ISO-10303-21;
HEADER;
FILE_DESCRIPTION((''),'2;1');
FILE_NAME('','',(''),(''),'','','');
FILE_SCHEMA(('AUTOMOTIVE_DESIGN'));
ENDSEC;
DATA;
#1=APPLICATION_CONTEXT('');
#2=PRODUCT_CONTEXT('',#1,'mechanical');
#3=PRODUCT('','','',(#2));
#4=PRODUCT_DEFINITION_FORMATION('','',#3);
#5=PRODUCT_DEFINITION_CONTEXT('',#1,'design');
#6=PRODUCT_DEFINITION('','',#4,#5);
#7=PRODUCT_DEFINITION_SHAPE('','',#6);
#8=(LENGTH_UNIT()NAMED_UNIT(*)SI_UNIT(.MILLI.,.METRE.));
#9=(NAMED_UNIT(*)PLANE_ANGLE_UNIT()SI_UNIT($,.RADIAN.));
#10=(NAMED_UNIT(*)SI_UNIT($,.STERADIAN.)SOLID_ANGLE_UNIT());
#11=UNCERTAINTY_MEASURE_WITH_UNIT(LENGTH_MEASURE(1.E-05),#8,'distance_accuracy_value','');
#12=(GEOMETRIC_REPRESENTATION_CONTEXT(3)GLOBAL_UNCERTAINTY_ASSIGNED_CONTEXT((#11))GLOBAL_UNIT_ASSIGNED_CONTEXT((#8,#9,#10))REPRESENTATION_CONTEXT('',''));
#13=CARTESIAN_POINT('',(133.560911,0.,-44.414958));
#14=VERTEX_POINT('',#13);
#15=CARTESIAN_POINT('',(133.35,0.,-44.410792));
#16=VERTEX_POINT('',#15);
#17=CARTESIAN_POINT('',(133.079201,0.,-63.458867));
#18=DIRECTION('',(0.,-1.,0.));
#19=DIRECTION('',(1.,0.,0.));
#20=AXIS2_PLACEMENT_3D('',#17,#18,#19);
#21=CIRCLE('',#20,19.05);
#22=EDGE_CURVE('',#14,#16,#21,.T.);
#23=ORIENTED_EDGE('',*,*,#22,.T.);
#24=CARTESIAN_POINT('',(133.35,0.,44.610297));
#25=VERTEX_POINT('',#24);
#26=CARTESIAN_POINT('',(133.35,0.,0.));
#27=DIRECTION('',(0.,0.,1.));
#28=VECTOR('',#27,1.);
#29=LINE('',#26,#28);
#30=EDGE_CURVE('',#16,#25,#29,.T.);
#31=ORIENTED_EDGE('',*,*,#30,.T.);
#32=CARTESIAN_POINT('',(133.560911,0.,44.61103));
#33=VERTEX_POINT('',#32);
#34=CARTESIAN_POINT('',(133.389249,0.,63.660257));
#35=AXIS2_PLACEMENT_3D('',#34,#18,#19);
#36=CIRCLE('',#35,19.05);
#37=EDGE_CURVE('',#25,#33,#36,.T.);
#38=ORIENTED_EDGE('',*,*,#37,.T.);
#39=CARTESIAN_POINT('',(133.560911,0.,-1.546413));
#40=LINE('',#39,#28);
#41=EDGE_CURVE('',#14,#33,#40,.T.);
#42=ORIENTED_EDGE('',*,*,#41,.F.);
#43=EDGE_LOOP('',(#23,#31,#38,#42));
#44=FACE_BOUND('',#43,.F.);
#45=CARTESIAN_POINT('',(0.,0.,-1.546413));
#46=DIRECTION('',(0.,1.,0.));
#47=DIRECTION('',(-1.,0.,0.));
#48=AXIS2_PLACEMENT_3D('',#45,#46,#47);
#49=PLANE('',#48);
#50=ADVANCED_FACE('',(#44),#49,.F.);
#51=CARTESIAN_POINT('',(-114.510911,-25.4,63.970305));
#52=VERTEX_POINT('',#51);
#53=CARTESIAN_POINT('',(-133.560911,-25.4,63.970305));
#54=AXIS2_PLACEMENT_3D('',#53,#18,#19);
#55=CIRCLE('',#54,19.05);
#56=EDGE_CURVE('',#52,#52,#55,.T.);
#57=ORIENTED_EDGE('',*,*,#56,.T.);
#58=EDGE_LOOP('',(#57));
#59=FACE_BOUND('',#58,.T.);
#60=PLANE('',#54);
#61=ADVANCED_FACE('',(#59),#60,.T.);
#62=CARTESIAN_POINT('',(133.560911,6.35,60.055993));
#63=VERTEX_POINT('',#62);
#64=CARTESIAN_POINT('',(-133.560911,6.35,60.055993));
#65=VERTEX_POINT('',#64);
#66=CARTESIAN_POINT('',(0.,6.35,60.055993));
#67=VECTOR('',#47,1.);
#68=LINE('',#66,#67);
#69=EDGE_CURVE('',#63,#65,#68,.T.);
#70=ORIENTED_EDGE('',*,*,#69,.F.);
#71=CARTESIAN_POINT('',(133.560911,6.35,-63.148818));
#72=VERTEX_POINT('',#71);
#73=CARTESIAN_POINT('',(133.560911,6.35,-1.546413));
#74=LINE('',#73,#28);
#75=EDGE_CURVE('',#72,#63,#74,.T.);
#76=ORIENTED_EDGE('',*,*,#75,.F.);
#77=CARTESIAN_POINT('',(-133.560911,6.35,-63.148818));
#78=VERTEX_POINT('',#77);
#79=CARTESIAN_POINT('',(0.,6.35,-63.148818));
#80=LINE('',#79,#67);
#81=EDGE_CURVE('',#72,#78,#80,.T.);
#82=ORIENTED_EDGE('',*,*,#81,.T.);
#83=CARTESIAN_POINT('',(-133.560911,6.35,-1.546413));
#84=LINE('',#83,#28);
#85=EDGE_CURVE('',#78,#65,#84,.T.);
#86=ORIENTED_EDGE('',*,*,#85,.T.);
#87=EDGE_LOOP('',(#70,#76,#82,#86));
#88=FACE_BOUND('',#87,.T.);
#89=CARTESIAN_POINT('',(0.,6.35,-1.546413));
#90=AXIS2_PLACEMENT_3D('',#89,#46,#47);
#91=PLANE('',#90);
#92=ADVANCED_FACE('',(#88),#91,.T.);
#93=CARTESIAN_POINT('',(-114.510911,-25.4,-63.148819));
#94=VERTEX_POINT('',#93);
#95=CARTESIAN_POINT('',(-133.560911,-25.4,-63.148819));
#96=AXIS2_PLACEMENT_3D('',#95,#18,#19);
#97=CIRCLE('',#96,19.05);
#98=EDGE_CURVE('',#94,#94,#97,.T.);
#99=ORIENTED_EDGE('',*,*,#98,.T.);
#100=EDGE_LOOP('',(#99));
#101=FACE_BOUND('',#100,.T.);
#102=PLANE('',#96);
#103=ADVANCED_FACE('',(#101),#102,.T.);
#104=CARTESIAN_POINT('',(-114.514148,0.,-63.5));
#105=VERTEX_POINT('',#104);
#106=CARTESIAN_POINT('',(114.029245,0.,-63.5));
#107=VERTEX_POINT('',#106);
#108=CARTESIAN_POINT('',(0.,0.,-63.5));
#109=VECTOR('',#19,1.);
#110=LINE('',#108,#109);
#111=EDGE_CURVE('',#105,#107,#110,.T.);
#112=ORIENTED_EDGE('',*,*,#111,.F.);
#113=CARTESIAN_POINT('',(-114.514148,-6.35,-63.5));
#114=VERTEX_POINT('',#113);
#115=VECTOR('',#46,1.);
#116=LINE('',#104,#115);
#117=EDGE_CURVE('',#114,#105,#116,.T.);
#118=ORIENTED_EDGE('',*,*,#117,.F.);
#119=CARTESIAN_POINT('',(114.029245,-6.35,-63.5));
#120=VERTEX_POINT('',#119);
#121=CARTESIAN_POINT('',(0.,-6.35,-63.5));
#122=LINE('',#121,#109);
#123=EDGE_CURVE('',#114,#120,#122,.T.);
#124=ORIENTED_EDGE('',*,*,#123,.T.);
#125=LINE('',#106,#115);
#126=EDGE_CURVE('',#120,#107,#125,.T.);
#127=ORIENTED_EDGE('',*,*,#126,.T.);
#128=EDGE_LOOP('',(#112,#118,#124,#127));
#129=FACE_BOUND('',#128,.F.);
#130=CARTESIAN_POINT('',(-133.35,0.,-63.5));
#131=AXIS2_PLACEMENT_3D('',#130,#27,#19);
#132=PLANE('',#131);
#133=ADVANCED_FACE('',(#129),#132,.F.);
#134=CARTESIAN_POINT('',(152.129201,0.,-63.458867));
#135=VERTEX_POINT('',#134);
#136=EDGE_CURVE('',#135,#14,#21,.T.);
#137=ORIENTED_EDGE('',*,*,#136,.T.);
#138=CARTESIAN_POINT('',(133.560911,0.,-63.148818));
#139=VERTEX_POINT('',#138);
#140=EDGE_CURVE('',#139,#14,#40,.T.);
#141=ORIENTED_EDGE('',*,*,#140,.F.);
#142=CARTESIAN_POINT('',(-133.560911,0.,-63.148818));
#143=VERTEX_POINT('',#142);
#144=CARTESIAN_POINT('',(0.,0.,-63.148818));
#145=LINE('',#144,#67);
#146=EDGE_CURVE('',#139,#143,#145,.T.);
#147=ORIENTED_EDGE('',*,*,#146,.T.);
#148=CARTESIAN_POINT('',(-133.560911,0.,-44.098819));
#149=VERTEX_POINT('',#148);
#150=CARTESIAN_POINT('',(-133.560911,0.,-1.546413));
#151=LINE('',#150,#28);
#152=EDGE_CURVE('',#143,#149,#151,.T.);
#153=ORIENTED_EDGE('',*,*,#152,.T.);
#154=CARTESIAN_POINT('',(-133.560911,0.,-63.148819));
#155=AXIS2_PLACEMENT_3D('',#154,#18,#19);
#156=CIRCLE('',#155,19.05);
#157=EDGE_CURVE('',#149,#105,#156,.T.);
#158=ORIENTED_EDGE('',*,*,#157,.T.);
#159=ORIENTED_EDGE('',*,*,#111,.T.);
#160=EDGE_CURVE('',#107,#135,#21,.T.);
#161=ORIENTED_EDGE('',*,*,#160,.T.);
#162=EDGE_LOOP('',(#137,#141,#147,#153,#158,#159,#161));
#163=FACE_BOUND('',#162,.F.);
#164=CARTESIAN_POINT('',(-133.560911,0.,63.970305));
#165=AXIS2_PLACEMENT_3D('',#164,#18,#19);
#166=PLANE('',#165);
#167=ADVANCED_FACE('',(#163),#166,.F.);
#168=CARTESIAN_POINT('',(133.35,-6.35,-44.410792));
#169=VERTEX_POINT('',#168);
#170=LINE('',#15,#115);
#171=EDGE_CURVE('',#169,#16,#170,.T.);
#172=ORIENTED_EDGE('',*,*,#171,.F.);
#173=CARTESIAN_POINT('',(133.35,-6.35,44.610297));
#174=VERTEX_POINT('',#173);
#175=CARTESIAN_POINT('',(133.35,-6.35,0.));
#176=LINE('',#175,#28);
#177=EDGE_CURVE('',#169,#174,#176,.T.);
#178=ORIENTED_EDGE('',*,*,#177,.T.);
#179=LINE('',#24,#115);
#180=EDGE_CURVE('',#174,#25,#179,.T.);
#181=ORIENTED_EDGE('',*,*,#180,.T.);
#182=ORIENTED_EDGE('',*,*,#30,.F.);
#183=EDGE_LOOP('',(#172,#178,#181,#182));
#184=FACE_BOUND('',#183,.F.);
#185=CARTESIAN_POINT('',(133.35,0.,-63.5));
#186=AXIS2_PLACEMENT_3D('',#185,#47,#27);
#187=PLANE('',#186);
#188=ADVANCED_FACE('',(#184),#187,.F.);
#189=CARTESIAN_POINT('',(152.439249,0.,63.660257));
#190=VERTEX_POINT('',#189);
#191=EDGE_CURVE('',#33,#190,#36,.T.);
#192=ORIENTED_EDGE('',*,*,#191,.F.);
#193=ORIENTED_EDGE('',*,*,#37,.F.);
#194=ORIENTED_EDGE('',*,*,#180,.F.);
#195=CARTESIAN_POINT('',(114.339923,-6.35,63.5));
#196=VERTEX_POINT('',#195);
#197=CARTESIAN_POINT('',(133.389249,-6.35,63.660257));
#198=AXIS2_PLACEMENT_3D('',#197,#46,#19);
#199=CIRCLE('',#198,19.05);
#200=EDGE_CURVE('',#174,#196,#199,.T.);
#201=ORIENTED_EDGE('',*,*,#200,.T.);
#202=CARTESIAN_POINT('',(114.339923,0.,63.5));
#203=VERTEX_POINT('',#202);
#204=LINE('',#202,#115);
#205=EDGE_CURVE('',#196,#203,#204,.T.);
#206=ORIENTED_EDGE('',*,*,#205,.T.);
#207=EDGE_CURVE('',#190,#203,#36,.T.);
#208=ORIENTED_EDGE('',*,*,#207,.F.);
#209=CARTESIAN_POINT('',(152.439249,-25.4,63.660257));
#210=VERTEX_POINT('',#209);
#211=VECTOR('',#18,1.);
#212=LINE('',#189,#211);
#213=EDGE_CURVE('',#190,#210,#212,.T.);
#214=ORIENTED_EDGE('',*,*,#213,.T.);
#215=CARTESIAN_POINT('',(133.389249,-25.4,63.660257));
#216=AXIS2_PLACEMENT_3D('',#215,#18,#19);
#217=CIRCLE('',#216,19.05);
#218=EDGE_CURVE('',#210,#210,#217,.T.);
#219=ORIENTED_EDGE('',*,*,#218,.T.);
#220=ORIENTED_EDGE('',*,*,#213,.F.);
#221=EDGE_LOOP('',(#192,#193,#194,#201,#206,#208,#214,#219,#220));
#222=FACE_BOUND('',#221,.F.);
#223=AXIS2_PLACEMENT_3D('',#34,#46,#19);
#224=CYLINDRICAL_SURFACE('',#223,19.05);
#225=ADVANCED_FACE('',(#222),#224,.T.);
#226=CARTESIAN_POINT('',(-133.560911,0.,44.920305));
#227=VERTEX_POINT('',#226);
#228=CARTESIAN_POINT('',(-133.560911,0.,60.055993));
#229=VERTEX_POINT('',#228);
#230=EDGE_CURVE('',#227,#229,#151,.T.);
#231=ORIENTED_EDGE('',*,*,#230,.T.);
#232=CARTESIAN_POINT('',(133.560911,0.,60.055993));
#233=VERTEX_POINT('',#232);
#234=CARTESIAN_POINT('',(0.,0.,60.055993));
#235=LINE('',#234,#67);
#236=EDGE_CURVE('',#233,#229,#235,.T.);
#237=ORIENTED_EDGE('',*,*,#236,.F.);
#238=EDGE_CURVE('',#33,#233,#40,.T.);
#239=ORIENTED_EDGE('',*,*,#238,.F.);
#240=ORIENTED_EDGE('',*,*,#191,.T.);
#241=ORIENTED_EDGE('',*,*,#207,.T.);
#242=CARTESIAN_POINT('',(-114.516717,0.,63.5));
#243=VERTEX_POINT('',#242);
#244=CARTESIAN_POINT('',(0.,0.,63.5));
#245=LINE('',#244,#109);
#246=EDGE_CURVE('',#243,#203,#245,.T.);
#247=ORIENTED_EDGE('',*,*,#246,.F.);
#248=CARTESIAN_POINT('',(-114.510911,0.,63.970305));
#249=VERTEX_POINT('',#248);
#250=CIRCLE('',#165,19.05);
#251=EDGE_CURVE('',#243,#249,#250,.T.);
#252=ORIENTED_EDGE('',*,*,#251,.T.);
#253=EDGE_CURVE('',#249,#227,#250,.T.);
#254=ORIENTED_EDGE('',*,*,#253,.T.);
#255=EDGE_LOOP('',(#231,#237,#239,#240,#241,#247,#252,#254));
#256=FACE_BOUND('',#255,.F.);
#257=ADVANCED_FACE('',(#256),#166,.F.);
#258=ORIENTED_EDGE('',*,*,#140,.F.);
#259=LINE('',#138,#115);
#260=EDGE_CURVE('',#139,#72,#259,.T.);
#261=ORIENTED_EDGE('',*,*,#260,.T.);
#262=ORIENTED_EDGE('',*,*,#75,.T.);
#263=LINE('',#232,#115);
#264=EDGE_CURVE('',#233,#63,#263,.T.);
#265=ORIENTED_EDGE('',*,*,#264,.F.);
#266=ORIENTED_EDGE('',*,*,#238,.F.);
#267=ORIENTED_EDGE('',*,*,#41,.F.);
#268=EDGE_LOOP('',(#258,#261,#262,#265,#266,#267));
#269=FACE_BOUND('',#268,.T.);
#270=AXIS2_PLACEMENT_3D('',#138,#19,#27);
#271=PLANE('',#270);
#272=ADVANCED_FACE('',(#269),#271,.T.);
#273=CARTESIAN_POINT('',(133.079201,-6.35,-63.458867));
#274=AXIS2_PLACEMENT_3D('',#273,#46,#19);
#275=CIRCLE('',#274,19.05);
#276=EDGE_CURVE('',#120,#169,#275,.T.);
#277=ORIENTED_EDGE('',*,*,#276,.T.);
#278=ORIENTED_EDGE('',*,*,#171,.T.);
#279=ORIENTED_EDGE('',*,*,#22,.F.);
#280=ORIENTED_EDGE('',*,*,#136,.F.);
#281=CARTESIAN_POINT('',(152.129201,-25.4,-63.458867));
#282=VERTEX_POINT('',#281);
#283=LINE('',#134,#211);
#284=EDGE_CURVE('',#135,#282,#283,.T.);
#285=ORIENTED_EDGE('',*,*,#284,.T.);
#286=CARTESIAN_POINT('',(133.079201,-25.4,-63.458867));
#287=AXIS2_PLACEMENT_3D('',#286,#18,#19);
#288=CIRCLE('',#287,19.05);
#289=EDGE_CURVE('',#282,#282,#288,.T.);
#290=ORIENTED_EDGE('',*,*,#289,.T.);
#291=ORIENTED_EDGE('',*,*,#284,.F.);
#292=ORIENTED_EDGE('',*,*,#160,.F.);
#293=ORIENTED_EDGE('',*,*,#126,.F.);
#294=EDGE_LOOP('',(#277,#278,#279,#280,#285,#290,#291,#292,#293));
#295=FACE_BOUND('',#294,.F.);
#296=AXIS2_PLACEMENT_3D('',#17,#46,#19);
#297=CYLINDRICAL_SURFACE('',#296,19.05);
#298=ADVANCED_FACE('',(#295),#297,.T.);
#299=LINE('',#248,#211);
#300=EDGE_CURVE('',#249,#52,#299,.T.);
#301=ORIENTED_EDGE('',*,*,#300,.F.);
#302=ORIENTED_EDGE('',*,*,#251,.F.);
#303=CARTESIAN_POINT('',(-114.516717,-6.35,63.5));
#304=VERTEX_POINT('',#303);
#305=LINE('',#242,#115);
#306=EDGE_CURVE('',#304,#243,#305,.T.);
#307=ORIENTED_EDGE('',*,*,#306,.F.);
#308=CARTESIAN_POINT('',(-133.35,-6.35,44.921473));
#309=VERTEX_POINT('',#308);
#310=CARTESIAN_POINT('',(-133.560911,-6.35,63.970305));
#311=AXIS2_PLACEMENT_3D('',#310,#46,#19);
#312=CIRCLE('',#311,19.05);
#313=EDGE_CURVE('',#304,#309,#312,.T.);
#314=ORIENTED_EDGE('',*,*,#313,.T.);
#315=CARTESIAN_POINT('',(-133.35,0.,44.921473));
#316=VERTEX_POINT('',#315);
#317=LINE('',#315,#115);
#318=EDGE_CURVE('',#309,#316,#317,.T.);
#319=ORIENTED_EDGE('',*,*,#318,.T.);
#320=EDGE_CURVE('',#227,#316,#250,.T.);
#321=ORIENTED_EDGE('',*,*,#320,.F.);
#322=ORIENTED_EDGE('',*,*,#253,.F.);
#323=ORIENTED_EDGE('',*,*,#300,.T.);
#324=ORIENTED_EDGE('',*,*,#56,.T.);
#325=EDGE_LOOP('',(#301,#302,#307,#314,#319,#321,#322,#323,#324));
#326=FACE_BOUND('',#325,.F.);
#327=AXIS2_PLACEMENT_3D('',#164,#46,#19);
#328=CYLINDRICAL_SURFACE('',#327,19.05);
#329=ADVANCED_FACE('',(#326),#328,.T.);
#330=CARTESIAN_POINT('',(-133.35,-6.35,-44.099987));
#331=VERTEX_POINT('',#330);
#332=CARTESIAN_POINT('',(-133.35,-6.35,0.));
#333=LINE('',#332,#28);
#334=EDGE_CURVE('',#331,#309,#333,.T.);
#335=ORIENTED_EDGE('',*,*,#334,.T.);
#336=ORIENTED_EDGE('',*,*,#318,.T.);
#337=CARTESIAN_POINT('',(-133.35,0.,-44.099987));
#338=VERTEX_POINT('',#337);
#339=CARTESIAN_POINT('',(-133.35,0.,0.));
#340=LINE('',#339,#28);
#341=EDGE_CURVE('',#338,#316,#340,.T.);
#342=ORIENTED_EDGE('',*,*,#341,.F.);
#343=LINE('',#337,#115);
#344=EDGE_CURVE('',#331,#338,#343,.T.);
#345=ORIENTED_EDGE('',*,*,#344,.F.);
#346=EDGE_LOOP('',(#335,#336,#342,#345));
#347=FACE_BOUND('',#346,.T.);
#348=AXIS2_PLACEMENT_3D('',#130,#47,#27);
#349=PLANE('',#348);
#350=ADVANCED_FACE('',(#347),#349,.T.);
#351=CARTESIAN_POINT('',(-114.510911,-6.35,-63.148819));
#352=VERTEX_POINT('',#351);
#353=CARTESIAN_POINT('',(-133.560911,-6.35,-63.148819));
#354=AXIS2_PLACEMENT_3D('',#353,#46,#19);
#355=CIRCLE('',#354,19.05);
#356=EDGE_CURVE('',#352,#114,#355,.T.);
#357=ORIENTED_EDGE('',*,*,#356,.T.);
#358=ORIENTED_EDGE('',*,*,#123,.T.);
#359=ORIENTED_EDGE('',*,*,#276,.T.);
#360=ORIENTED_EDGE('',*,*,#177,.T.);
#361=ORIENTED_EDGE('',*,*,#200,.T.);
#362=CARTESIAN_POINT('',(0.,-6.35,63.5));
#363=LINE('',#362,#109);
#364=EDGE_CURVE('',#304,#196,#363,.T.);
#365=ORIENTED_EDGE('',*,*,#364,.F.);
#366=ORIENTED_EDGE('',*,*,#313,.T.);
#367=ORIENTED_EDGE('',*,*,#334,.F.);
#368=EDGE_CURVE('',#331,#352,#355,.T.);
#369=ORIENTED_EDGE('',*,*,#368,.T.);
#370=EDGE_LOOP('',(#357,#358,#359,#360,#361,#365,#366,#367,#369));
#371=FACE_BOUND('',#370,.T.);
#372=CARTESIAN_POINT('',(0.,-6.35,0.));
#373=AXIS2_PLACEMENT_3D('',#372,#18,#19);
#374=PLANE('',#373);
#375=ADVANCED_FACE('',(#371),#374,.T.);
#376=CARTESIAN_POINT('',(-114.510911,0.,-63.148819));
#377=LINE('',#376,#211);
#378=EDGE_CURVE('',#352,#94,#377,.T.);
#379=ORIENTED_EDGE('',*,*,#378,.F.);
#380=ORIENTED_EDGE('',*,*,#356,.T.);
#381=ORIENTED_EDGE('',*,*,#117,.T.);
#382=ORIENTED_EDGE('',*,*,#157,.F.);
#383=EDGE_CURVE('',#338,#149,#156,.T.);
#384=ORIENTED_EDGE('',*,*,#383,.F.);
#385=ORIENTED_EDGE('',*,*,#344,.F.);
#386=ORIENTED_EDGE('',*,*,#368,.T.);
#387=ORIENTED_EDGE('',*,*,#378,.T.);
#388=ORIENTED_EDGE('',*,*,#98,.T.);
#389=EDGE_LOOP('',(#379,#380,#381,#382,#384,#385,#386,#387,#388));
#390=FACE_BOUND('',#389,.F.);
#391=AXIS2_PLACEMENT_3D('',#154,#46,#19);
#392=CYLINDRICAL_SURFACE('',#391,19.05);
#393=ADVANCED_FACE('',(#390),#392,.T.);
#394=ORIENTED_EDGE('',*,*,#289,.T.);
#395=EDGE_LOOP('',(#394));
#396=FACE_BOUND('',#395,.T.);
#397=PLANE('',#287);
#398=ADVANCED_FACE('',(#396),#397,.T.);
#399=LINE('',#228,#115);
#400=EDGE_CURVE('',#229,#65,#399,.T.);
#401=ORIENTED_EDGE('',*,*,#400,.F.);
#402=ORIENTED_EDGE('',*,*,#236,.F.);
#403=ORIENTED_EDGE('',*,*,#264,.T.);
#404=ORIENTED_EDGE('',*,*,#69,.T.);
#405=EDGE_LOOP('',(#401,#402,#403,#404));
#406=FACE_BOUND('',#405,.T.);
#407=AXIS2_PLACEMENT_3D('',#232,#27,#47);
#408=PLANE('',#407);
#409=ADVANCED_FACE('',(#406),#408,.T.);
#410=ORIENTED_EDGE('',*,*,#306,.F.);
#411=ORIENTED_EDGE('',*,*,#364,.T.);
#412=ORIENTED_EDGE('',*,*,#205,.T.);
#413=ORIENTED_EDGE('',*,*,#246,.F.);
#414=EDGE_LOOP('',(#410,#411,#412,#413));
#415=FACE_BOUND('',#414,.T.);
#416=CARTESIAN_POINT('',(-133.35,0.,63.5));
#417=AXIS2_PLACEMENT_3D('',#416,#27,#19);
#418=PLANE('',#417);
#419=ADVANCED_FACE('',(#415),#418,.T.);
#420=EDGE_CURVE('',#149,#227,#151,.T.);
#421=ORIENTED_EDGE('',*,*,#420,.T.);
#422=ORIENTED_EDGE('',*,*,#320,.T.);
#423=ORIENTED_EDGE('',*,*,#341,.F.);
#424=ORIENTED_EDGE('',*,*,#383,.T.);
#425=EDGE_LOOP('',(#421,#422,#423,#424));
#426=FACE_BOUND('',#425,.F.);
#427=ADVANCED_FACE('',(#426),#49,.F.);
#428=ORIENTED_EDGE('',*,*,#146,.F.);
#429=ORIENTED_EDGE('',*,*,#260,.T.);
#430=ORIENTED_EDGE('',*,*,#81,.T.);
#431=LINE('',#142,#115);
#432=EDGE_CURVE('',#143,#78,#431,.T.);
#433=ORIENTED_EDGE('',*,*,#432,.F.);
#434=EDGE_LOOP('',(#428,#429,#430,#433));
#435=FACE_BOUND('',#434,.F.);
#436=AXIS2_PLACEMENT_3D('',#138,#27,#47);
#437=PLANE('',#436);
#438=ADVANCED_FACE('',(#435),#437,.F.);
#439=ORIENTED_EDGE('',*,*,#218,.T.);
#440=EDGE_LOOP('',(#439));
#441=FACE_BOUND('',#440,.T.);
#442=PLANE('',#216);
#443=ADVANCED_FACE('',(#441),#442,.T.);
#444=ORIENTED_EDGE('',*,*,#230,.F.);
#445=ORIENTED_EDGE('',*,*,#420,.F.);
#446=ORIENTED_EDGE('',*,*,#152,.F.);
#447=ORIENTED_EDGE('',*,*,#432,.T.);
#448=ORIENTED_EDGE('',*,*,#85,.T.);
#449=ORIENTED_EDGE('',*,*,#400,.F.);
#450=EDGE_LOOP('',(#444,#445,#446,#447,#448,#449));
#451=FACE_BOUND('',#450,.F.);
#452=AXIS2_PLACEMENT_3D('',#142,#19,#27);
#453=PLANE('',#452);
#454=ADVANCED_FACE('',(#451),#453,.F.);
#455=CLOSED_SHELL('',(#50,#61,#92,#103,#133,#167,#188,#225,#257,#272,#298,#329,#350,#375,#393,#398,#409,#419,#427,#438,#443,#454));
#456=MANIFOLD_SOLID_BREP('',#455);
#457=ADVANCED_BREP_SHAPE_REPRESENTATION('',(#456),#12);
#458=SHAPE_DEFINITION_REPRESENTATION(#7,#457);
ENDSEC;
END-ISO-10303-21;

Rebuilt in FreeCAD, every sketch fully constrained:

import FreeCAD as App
import Part
import Sketcher
from FreeCAD import Vector
Q = App.Units.Quantity

doc = App.newDocument("Part")
body = doc.addObject("PartDesign::Body", "Body")

sketch1 = body.newObject("Sketcher::SketchObject", "Sketch")
sketch1.AttachmentSupport = (doc.getObject("XZ_Plane"), [""])
sketch1.MapMode = "FlatFace"
sketch1.addGeometry([
    Part.LineSegment(Vector(-133, 64, 0), Vector(-133, -64, 0)),
    Part.LineSegment(Vector(-133, -64, 0), Vector(133, -64, 0)),
    Part.LineSegment(Vector(133, -64, 0), Vector(133, 64, 0)),
    Part.LineSegment(Vector(133, 64, 0), Vector(-133, 64, 0)),
], False)
sketch1.addConstraint([
    Sketcher.Constraint("Coincident", 0, 2, 1, 1),
    Sketcher.Constraint("Coincident", 1, 2, 2, 1),
    Sketcher.Constraint("Coincident", 2, 2, 3, 1),
    Sketcher.Constraint("Coincident", 3, 2, 0, 1),
    Sketcher.Constraint("Vertical", 0),
    Sketcher.Constraint("Horizontal", 1),
    Sketcher.Constraint("Vertical", 2),
    Sketcher.Constraint("Horizontal", 3),
    Sketcher.Constraint("Symmetric", 0, 2, 2, 2, -1, 1),
    Sketcher.Constraint("DistanceY", 0, 2, 0, 1, Q("5 in")),
    Sketcher.Constraint("DistanceX", 1, 1, 1, 2, Q("10.5 in")),
])
pad1 = body.newObject("PartDesign::Pad", "Pad")
pad1.Profile = sketch1
pad1.Length = Q("0.25 in")

sketch2 = body.newObject("Sketcher::SketchObject", "Sketch001")
sketch2.AttachmentSupport = (doc.getObject("XZ_Plane"), [""])
sketch2.MapMode = "FlatFace"
sketch2.addGeometry([
    Part.Circle(Vector(-134, 64, 0), Vector(0, 0, 1), 19),
    Part.Circle(Vector(133, 64, 0), Vector(0, 0, 1), 19),
    Part.Circle(Vector(133, -63, 0), Vector(0, 0, 1), 19),
    Part.Circle(Vector(-134, -63, 0), Vector(0, 0, 1), 19),
], False)
sketch2.addConstraint([
    Sketcher.Constraint("Equal", 0, 1),
    Sketcher.Constraint("Equal", 1, 2),
    Sketcher.Constraint("Equal", 2, 3),
    Sketcher.Constraint("Vertical", 0, 3, 3, 3),
    Sketcher.Constraint("Diameter", 0, Q("1.5 in")),
    Sketcher.Constraint("DistanceX", -1, 1, 2, 3, Q("133.079201 mm")),
    Sketcher.Constraint("DistanceX", 0, 3, -1, 1, Q("133.560911 mm")),
    Sketcher.Constraint("DistanceX", -1, 1, 1, 3, Q("133.389249 mm")),
    Sketcher.Constraint("DistanceY", 3, 3, -1, 1, Q("63.148819 mm")),
    Sketcher.Constraint("DistanceY", 1, 3, 0, 3, Q("0.310048 mm")),
    Sketcher.Constraint("DistanceY", 2, 3, 0, 3, Q("127.429172 mm")),
    Sketcher.Constraint("DistanceY", -1, 1, 0, 3, Q("63.970305 mm")),
])
pad2 = body.newObject("PartDesign::Pad", "Pad001")
pad2.Profile = sketch2
pad2.Length = Q("1 in")

sketch3 = body.newObject("Sketcher::SketchObject", "Sketch002")
sketch3.AttachmentSupport = (doc.getObject("XZ_Plane"), [""])
sketch3.MapMode = "FlatFace"
sketch3.addGeometry([
    Part.LineSegment(Vector(134, 60, 0), Vector(134, -63, 0)),
    Part.LineSegment(Vector(134, -63, 0), Vector(-134, -63, 0)),
    Part.LineSegment(Vector(-134, -63, 0), Vector(-134, 60, 0)),
    Part.LineSegment(Vector(-134, 60, 0), Vector(134, 60, 0)),
], False)
sketch3.addConstraint([
    Sketcher.Constraint("Coincident", 0, 2, 1, 1),
    Sketcher.Constraint("Coincident", 1, 2, 2, 1),
    Sketcher.Constraint("Coincident", 2, 2, 3, 1),
    Sketcher.Constraint("Coincident", 3, 2, 0, 1),
    Sketcher.Constraint("Vertical", 0),
    Sketcher.Constraint("Horizontal", 1),
    Sketcher.Constraint("Vertical", 2),
    Sketcher.Constraint("Horizontal", 3),
    Sketcher.Constraint("DistanceX", 1, 2, 1, 1, Q("267.121822 mm")),
    Sketcher.Constraint("DistanceY", 0, 2, 0, 1, Q("123.204811 mm")),
    Sketcher.Constraint("DistanceX", -1, 1, 0, 2, Q("133.560911 mm")),
    Sketcher.Constraint("DistanceY", 0, 2, -1, 1, Q("63.148818 mm")),
])
pad3 = body.newObject("PartDesign::Pad", "Pad002")
pad3.Profile = sketch3
pad3.Length = Q("0.25 in")
pad3.Reversed = True

doc.recompute()
